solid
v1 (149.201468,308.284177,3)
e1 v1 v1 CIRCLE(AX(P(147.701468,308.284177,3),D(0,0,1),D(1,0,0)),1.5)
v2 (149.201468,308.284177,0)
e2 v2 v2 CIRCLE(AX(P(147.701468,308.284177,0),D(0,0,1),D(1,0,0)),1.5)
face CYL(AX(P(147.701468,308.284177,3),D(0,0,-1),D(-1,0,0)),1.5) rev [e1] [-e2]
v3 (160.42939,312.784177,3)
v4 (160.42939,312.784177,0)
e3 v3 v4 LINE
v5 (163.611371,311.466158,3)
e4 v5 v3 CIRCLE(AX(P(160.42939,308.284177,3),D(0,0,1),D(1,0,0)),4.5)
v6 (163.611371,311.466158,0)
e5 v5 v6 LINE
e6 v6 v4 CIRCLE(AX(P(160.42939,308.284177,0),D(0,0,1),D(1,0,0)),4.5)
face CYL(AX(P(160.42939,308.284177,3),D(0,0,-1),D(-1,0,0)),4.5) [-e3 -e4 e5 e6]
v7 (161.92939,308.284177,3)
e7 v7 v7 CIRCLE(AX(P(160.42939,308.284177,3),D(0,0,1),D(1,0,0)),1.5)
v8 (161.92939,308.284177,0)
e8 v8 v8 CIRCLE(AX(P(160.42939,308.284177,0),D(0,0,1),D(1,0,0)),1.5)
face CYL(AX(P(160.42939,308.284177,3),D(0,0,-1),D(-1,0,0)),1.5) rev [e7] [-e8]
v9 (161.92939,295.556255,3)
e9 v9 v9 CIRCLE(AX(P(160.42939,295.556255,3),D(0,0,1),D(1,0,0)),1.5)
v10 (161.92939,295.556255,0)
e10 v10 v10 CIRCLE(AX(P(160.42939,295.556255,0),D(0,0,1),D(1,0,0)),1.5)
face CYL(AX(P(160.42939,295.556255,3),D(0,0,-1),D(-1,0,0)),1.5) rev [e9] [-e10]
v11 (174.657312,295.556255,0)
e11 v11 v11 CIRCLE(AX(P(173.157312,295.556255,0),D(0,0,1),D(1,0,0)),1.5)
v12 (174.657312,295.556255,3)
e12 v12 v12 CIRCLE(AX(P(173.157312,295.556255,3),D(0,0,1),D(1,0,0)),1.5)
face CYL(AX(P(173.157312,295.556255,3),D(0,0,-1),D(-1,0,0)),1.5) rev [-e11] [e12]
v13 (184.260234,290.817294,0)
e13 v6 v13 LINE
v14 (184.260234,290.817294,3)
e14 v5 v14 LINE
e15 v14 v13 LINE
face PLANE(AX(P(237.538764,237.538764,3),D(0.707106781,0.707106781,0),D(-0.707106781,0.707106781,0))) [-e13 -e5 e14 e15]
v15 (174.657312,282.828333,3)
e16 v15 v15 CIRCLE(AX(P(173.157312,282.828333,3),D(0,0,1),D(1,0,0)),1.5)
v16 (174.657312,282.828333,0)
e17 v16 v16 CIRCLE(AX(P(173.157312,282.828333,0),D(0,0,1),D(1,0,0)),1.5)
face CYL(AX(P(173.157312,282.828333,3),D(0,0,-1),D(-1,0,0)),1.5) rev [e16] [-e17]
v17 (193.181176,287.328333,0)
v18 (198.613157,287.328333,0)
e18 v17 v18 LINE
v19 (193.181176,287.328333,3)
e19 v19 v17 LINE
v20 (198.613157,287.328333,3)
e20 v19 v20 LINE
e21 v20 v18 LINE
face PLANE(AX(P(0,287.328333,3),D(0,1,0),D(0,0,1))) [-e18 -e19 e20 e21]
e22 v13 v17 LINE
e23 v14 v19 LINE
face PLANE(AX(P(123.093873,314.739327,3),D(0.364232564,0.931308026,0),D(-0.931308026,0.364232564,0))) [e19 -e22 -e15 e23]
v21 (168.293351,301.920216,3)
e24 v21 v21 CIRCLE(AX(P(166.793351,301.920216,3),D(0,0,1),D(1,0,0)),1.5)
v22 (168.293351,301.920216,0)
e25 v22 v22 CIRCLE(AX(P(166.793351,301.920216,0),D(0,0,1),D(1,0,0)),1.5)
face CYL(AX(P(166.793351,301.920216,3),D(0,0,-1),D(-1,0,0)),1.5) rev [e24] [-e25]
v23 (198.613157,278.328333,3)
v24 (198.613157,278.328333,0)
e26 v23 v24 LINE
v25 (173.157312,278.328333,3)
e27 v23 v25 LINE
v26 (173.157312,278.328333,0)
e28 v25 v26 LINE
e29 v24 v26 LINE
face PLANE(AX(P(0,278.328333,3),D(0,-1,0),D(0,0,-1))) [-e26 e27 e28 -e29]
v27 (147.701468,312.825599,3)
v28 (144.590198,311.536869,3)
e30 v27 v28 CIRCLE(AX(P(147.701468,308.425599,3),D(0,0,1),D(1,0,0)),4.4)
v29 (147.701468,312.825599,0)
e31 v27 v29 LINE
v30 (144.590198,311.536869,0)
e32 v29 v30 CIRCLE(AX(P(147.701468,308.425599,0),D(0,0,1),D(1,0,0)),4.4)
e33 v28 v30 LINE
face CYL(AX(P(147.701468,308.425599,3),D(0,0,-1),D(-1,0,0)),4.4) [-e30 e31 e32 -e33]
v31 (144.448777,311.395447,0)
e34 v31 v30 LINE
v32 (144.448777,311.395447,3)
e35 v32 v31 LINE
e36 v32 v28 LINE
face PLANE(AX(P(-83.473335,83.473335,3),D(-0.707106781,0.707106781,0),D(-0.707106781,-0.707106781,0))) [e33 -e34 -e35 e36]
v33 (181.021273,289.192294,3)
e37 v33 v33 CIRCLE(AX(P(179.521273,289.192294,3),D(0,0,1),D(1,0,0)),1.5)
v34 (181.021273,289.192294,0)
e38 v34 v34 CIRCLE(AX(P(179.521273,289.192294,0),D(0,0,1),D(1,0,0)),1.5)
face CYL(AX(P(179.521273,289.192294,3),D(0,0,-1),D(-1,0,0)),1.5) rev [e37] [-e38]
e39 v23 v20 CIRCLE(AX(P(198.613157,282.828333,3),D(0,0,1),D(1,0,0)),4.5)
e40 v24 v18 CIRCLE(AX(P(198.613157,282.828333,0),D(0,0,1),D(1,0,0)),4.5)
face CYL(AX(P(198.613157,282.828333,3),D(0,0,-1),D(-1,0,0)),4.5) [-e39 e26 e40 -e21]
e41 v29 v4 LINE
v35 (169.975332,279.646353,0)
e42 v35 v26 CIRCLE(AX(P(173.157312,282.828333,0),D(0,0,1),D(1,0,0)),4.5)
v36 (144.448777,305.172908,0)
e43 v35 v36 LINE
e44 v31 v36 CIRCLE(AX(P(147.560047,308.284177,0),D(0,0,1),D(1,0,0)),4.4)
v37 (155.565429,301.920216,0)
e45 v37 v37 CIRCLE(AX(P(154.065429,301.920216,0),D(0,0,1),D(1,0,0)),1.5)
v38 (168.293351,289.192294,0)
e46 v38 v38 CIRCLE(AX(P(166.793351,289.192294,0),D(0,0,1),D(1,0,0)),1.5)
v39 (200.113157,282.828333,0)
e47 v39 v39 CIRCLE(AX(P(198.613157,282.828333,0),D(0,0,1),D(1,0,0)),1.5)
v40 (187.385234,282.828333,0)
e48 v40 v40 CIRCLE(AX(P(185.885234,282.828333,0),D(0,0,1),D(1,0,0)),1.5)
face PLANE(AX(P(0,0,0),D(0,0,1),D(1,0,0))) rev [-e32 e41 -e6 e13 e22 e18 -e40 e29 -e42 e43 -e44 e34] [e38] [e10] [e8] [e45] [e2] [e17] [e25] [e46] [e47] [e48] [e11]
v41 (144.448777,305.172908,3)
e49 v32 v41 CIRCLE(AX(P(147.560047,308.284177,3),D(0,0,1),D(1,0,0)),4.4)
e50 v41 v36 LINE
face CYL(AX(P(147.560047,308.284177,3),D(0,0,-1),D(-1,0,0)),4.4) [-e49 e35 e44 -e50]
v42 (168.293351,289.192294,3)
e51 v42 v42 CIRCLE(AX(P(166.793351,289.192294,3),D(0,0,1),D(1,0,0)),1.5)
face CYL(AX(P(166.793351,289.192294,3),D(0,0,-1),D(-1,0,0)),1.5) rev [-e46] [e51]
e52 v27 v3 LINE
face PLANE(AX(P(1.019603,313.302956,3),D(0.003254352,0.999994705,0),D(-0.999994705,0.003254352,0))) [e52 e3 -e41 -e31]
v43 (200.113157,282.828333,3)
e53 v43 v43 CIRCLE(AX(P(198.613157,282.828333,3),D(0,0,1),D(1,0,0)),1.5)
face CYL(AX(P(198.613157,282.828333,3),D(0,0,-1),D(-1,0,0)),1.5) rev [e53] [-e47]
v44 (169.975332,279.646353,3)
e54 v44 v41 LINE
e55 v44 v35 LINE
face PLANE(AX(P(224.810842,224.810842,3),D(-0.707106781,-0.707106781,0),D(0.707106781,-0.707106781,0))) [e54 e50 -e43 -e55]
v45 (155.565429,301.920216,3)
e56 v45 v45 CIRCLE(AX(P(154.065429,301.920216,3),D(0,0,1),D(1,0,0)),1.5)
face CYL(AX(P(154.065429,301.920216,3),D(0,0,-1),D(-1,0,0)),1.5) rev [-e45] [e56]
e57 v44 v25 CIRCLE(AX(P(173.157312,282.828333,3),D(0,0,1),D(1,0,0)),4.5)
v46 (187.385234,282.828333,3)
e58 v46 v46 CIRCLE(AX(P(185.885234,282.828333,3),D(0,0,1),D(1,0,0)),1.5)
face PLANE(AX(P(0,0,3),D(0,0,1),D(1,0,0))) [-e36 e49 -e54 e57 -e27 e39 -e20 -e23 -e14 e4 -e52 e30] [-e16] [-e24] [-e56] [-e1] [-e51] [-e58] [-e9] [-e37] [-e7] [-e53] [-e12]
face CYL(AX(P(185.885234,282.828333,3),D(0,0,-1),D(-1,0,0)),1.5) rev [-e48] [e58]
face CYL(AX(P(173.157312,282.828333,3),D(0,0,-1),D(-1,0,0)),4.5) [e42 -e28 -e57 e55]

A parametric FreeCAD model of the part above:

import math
import FreeCAD as App
import Part
import Sketcher

V = App.Vector
Q = App.Units.Quantity

doc = App.newDocument("Part")
params = doc.addObject("Spreadsheet::Sheet", "Params")
for row, (alias, value) in enumerate([
    ("sketch1_diameter", "3 mm"),
    ("sketch1_radius", "4.5 mm"),
    ("sketch1_radius2", "4.4 mm"),
    ("sketch1_length", "0.2 mm"),
    ("sketch1_length2", "36.1 mm"),
    ("pad1_length", "3 mm"),
], start=1):
    params.set(f"A{row}", alias)
    params.set(f"B{row}", "=" + value)
    params.setAlias(f"B{row}", alias)

body = doc.addObject("PartDesign::Body", "Body")

sketch1 = body.newObject("Sketcher::SketchObject", "Sketch")
sketch1.AttachmentSupport = (doc.getObject("XY_Plane"), [""])
sketch1.MapMode = "FlatFace"
sketch1.addGeometry([
    Part.LineSegment(V(198.613157, 287.328333, 0), V(193.181176, 287.328333, 0)),
    Part.LineSegment(V(193.181176, 287.328333, 0), V(184.260234, 290.817294, 0)),
    Part.LineSegment(V(184.260234, 290.817294, 0), V(163.611371, 311.466158, 0)),
    Part.ArcOfCircle(Part.Circle(V(160.42939, 308.284177, 0), V(0, 0, 1), 4.5), math.radians(45), math.radians(90)),
    Part.LineSegment(V(160.42939, 312.784177, 0), V(147.730106, 312.825506, 0)),
    Part.LineSegment(V(147.730106, 312.825506, 0), V(147.701468, 312.825599, 0)),
    Part.ArcOfCircle(Part.Circle(V(147.701468, 308.425599, 0), V(0, 0, 1), 4.4), math.radians(90), math.radians(135)),
    Part.LineSegment(V(144.590198, 311.536869, 0), V(144.448777, 311.395447, 0)),
    Part.ArcOfCircle(Part.Circle(V(147.560047, 308.284177, 0), V(0, 0, 1), 4.4), math.radians(135), math.radians(225)),
    Part.LineSegment(V(144.448777, 305.172908, 0), V(169.975332, 279.646353, 0)),
    Part.ArcOfCircle(Part.Circle(V(173.157312, 282.828333, 0), V(0, 0, 1), 4.5), math.radians(-135), math.radians(-90)),
    Part.LineSegment(V(173.157312, 278.328333, 0), V(198.613157, 278.328333, 0)),
    Part.ArcOfCircle(Part.Circle(V(198.613157, 282.828333, 0), V(0, 0, 1), 4.5), math.radians(-90), math.radians(90)),
    Part.Circle(V(166.793351, 289.192294, 0), V(0, 0, 1), 1.5),
    Part.Circle(V(160.42939, 295.556255, 0), V(0, 0, 1), 1.5),
    Part.Circle(V(173.157312, 282.828333, 0), V(0, 0, 1), 1.5),
    Part.Circle(V(185.885234, 282.828333, 0), V(0, 0, 1), 1.5),
    Part.Circle(V(198.613157, 282.828333, 0), V(0, 0, 1), 1.5),
    Part.Circle(V(179.521273, 289.192294, 0), V(0, 0, 1), 1.5),
    Part.Circle(V(173.157312, 295.556255, 0), V(0, 0, 1), 1.5),
    Part.Circle(V(154.065429, 301.920216, 0), V(0, 0, 1), 1.5),
    Part.Circle(V(166.793351, 301.920216, 0), V(0, 0, 1), 1.5),
    Part.Circle(V(147.701468, 308.284177, 0), V(0, 0, 1), 1.5),
    Part.Circle(V(160.42939, 308.284177, 0), V(0, 0, 1), 1.5),
], False)
sketch1.addConstraint([
    Sketcher.Constraint("Coincident", 0, 2, 1, 1),
    Sketcher.Constraint("Coincident", 1, 2, 2, 1),
    Sketcher.Constraint("Tangent", 2, 2, 3, 1),
    Sketcher.Constraint("Coincident", 3, 2, 4, 1),
    Sketcher.Constraint("Coincident", 4, 2, 5, 1),
    Sketcher.Constraint("Coincident", 5, 2, 6, 1),
    Sketcher.Constraint("Tangent", 6, 2, 7, 1),
    Sketcher.Constraint("Tangent", 7, 2, 8, 1),
    Sketcher.Constraint("Tangent", 8, 2, 9, 1),
    Sketcher.Constraint("Tangent", 9, 2, 10, 1),
    Sketcher.Constraint("Tangent", 10, 2, 11, 1),
    Sketcher.Constraint("Tangent", 11, 2, 12, 1),
    Sketcher.Constraint("Tangent", 12, 2, 0, 1),
    Sketcher.Constraint("Horizontal", 0),
    Sketcher.Constraint("Horizontal", 11),
    Sketcher.Constraint("Coincident", 15, 3, 10, 3),
    Sketcher.Constraint("Coincident", 17, 3, 12, 3),
    Sketcher.Constraint("Coincident", 23, 3, 3, 3),
    Sketcher.Constraint("Equal", 6, 8),
    Sketcher.Constraint("Equal", 3, 10),
    Sketcher.Constraint("Equal", 10, 12),
    Sketcher.Constraint("Equal", 13, 14),
    Sketcher.Constraint("Equal", 14, 15),
    Sketcher.Constraint("Equal", 15, 16),
    Sketcher.Constraint("Equal", 16, 17),
    Sketcher.Constraint("Equal", 17, 18),
    Sketcher.Constraint("Equal", 18, 19),
    Sketcher.Constraint("Equal", 19, 20),
    Sketcher.Constraint("Equal", 20, 21),
    Sketcher.Constraint("Equal", 21, 22),
    Sketcher.Constraint("Equal", 22, 23),
    Sketcher.Constraint("Parallel", 4, 5),
    Sketcher.Constraint("Perpendicular", 2, 7),
    Sketcher.Constraint("Perpendicular", 7, 9),
    Sketcher.Constraint("Horizontal", 3, 3, 8, 3),
    Sketcher.Constraint("Horizontal", 15, 3, 16, 3),
    Sketcher.Constraint("Horizontal", 13, 3, 18, 3),
    Sketcher.Constraint("Horizontal", 14, 3, 19, 3),
    Sketcher.Constraint("Horizontal", 20, 3, 21, 3),
    Sketcher.Constraint("Horizontal", 8, 3, 22, 3),
    Sketcher.Constraint("Vertical", 3, 3, 14, 3),
    Sketcher.Constraint("Vertical", 15, 3, 19, 3),
    Sketcher.Constraint("Vertical", 13, 3, 21, 3),
    Sketcher.Constraint("Vertical", 6, 3, 22, 3),
    Sketcher.Constraint("Vertical", 23, 3, 3, 2),
    Sketcher.Constraint("Vertical", 22, 3, 5, 2),
    Sketcher.Constraint("Vertical", 7, 2, 8, 2),
    Sketcher.Constraint("Diameter", 13, Q("3 mm")),
    Sketcher.Constraint("Radius", 3, Q("4.5 mm")),
    Sketcher.Constraint("Radius", 6, Q("4.4 mm")),
    Sketcher.Constraint("Distance", 7, Q("0.2 mm")),
    Sketcher.Constraint("Distance", 9, Q("36.1 mm")),
    Sketcher.Constraint("DistanceY", 18, 3, 1, 2, Q("1.625 mm")),
    Sketcher.Constraint("DistanceX", 1, 2, 16, 3, Q("1.625 mm")),
    Sketcher.Constraint("DistanceX", 0, 2, 0, 1, Q("5.431981 mm")),
    Sketcher.Constraint("DistanceY", -1, 1, 6, 3, Q("308.425599 mm")),
    Sketcher.Constraint("DistanceX", -1, 1, 6, 2, Q("144.590198 mm")),
    Sketcher.Constraint("Distance", 4, Q("12.699351 mm")),
    Sketcher.Constraint("Distance", 5, Q("0.028638 mm")),
    Sketcher.Constraint("DistanceX", 11, 1, 11, 2, Q("25.455844 mm")),
    Sketcher.Constraint("DistanceX", -1, 1, 13, 3, Q("166.793351 mm")),
    Sketcher.Constraint("DistanceX", -1, 1, 20, 3, Q("154.065429 mm")),
    Sketcher.Constraint("DistanceY", 10, 3, 13, 3, Q("6.363961 mm")),
    Sketcher.Constraint("DistanceY", 13, 3, 14, 3, Q("6.363961 mm")),
    Sketcher.Constraint("DistanceX", 10, 3, 18, 3, Q("6.363961 mm")),
    Sketcher.Constraint("DistanceY", 20, 3, 3, 3, Q("6.363961 mm")),
])
sketch1.setExpression("Constraints[47]", "Params.sketch1_diameter")
sketch1.setExpression("Constraints[48]", "Params.sketch1_radius")
sketch1.setExpression("Constraints[49]", "Params.sketch1_radius2")
sketch1.setExpression("Constraints[50]", "Params.sketch1_length")
sketch1.setExpression("Constraints[51]", "Params.sketch1_length2")
pad1 = body.newObject("PartDesign::Pad", "Pad")
pad1.Profile = sketch1
pad1.setExpression("Length", "Params.pad1_length")

doc.recompute()
